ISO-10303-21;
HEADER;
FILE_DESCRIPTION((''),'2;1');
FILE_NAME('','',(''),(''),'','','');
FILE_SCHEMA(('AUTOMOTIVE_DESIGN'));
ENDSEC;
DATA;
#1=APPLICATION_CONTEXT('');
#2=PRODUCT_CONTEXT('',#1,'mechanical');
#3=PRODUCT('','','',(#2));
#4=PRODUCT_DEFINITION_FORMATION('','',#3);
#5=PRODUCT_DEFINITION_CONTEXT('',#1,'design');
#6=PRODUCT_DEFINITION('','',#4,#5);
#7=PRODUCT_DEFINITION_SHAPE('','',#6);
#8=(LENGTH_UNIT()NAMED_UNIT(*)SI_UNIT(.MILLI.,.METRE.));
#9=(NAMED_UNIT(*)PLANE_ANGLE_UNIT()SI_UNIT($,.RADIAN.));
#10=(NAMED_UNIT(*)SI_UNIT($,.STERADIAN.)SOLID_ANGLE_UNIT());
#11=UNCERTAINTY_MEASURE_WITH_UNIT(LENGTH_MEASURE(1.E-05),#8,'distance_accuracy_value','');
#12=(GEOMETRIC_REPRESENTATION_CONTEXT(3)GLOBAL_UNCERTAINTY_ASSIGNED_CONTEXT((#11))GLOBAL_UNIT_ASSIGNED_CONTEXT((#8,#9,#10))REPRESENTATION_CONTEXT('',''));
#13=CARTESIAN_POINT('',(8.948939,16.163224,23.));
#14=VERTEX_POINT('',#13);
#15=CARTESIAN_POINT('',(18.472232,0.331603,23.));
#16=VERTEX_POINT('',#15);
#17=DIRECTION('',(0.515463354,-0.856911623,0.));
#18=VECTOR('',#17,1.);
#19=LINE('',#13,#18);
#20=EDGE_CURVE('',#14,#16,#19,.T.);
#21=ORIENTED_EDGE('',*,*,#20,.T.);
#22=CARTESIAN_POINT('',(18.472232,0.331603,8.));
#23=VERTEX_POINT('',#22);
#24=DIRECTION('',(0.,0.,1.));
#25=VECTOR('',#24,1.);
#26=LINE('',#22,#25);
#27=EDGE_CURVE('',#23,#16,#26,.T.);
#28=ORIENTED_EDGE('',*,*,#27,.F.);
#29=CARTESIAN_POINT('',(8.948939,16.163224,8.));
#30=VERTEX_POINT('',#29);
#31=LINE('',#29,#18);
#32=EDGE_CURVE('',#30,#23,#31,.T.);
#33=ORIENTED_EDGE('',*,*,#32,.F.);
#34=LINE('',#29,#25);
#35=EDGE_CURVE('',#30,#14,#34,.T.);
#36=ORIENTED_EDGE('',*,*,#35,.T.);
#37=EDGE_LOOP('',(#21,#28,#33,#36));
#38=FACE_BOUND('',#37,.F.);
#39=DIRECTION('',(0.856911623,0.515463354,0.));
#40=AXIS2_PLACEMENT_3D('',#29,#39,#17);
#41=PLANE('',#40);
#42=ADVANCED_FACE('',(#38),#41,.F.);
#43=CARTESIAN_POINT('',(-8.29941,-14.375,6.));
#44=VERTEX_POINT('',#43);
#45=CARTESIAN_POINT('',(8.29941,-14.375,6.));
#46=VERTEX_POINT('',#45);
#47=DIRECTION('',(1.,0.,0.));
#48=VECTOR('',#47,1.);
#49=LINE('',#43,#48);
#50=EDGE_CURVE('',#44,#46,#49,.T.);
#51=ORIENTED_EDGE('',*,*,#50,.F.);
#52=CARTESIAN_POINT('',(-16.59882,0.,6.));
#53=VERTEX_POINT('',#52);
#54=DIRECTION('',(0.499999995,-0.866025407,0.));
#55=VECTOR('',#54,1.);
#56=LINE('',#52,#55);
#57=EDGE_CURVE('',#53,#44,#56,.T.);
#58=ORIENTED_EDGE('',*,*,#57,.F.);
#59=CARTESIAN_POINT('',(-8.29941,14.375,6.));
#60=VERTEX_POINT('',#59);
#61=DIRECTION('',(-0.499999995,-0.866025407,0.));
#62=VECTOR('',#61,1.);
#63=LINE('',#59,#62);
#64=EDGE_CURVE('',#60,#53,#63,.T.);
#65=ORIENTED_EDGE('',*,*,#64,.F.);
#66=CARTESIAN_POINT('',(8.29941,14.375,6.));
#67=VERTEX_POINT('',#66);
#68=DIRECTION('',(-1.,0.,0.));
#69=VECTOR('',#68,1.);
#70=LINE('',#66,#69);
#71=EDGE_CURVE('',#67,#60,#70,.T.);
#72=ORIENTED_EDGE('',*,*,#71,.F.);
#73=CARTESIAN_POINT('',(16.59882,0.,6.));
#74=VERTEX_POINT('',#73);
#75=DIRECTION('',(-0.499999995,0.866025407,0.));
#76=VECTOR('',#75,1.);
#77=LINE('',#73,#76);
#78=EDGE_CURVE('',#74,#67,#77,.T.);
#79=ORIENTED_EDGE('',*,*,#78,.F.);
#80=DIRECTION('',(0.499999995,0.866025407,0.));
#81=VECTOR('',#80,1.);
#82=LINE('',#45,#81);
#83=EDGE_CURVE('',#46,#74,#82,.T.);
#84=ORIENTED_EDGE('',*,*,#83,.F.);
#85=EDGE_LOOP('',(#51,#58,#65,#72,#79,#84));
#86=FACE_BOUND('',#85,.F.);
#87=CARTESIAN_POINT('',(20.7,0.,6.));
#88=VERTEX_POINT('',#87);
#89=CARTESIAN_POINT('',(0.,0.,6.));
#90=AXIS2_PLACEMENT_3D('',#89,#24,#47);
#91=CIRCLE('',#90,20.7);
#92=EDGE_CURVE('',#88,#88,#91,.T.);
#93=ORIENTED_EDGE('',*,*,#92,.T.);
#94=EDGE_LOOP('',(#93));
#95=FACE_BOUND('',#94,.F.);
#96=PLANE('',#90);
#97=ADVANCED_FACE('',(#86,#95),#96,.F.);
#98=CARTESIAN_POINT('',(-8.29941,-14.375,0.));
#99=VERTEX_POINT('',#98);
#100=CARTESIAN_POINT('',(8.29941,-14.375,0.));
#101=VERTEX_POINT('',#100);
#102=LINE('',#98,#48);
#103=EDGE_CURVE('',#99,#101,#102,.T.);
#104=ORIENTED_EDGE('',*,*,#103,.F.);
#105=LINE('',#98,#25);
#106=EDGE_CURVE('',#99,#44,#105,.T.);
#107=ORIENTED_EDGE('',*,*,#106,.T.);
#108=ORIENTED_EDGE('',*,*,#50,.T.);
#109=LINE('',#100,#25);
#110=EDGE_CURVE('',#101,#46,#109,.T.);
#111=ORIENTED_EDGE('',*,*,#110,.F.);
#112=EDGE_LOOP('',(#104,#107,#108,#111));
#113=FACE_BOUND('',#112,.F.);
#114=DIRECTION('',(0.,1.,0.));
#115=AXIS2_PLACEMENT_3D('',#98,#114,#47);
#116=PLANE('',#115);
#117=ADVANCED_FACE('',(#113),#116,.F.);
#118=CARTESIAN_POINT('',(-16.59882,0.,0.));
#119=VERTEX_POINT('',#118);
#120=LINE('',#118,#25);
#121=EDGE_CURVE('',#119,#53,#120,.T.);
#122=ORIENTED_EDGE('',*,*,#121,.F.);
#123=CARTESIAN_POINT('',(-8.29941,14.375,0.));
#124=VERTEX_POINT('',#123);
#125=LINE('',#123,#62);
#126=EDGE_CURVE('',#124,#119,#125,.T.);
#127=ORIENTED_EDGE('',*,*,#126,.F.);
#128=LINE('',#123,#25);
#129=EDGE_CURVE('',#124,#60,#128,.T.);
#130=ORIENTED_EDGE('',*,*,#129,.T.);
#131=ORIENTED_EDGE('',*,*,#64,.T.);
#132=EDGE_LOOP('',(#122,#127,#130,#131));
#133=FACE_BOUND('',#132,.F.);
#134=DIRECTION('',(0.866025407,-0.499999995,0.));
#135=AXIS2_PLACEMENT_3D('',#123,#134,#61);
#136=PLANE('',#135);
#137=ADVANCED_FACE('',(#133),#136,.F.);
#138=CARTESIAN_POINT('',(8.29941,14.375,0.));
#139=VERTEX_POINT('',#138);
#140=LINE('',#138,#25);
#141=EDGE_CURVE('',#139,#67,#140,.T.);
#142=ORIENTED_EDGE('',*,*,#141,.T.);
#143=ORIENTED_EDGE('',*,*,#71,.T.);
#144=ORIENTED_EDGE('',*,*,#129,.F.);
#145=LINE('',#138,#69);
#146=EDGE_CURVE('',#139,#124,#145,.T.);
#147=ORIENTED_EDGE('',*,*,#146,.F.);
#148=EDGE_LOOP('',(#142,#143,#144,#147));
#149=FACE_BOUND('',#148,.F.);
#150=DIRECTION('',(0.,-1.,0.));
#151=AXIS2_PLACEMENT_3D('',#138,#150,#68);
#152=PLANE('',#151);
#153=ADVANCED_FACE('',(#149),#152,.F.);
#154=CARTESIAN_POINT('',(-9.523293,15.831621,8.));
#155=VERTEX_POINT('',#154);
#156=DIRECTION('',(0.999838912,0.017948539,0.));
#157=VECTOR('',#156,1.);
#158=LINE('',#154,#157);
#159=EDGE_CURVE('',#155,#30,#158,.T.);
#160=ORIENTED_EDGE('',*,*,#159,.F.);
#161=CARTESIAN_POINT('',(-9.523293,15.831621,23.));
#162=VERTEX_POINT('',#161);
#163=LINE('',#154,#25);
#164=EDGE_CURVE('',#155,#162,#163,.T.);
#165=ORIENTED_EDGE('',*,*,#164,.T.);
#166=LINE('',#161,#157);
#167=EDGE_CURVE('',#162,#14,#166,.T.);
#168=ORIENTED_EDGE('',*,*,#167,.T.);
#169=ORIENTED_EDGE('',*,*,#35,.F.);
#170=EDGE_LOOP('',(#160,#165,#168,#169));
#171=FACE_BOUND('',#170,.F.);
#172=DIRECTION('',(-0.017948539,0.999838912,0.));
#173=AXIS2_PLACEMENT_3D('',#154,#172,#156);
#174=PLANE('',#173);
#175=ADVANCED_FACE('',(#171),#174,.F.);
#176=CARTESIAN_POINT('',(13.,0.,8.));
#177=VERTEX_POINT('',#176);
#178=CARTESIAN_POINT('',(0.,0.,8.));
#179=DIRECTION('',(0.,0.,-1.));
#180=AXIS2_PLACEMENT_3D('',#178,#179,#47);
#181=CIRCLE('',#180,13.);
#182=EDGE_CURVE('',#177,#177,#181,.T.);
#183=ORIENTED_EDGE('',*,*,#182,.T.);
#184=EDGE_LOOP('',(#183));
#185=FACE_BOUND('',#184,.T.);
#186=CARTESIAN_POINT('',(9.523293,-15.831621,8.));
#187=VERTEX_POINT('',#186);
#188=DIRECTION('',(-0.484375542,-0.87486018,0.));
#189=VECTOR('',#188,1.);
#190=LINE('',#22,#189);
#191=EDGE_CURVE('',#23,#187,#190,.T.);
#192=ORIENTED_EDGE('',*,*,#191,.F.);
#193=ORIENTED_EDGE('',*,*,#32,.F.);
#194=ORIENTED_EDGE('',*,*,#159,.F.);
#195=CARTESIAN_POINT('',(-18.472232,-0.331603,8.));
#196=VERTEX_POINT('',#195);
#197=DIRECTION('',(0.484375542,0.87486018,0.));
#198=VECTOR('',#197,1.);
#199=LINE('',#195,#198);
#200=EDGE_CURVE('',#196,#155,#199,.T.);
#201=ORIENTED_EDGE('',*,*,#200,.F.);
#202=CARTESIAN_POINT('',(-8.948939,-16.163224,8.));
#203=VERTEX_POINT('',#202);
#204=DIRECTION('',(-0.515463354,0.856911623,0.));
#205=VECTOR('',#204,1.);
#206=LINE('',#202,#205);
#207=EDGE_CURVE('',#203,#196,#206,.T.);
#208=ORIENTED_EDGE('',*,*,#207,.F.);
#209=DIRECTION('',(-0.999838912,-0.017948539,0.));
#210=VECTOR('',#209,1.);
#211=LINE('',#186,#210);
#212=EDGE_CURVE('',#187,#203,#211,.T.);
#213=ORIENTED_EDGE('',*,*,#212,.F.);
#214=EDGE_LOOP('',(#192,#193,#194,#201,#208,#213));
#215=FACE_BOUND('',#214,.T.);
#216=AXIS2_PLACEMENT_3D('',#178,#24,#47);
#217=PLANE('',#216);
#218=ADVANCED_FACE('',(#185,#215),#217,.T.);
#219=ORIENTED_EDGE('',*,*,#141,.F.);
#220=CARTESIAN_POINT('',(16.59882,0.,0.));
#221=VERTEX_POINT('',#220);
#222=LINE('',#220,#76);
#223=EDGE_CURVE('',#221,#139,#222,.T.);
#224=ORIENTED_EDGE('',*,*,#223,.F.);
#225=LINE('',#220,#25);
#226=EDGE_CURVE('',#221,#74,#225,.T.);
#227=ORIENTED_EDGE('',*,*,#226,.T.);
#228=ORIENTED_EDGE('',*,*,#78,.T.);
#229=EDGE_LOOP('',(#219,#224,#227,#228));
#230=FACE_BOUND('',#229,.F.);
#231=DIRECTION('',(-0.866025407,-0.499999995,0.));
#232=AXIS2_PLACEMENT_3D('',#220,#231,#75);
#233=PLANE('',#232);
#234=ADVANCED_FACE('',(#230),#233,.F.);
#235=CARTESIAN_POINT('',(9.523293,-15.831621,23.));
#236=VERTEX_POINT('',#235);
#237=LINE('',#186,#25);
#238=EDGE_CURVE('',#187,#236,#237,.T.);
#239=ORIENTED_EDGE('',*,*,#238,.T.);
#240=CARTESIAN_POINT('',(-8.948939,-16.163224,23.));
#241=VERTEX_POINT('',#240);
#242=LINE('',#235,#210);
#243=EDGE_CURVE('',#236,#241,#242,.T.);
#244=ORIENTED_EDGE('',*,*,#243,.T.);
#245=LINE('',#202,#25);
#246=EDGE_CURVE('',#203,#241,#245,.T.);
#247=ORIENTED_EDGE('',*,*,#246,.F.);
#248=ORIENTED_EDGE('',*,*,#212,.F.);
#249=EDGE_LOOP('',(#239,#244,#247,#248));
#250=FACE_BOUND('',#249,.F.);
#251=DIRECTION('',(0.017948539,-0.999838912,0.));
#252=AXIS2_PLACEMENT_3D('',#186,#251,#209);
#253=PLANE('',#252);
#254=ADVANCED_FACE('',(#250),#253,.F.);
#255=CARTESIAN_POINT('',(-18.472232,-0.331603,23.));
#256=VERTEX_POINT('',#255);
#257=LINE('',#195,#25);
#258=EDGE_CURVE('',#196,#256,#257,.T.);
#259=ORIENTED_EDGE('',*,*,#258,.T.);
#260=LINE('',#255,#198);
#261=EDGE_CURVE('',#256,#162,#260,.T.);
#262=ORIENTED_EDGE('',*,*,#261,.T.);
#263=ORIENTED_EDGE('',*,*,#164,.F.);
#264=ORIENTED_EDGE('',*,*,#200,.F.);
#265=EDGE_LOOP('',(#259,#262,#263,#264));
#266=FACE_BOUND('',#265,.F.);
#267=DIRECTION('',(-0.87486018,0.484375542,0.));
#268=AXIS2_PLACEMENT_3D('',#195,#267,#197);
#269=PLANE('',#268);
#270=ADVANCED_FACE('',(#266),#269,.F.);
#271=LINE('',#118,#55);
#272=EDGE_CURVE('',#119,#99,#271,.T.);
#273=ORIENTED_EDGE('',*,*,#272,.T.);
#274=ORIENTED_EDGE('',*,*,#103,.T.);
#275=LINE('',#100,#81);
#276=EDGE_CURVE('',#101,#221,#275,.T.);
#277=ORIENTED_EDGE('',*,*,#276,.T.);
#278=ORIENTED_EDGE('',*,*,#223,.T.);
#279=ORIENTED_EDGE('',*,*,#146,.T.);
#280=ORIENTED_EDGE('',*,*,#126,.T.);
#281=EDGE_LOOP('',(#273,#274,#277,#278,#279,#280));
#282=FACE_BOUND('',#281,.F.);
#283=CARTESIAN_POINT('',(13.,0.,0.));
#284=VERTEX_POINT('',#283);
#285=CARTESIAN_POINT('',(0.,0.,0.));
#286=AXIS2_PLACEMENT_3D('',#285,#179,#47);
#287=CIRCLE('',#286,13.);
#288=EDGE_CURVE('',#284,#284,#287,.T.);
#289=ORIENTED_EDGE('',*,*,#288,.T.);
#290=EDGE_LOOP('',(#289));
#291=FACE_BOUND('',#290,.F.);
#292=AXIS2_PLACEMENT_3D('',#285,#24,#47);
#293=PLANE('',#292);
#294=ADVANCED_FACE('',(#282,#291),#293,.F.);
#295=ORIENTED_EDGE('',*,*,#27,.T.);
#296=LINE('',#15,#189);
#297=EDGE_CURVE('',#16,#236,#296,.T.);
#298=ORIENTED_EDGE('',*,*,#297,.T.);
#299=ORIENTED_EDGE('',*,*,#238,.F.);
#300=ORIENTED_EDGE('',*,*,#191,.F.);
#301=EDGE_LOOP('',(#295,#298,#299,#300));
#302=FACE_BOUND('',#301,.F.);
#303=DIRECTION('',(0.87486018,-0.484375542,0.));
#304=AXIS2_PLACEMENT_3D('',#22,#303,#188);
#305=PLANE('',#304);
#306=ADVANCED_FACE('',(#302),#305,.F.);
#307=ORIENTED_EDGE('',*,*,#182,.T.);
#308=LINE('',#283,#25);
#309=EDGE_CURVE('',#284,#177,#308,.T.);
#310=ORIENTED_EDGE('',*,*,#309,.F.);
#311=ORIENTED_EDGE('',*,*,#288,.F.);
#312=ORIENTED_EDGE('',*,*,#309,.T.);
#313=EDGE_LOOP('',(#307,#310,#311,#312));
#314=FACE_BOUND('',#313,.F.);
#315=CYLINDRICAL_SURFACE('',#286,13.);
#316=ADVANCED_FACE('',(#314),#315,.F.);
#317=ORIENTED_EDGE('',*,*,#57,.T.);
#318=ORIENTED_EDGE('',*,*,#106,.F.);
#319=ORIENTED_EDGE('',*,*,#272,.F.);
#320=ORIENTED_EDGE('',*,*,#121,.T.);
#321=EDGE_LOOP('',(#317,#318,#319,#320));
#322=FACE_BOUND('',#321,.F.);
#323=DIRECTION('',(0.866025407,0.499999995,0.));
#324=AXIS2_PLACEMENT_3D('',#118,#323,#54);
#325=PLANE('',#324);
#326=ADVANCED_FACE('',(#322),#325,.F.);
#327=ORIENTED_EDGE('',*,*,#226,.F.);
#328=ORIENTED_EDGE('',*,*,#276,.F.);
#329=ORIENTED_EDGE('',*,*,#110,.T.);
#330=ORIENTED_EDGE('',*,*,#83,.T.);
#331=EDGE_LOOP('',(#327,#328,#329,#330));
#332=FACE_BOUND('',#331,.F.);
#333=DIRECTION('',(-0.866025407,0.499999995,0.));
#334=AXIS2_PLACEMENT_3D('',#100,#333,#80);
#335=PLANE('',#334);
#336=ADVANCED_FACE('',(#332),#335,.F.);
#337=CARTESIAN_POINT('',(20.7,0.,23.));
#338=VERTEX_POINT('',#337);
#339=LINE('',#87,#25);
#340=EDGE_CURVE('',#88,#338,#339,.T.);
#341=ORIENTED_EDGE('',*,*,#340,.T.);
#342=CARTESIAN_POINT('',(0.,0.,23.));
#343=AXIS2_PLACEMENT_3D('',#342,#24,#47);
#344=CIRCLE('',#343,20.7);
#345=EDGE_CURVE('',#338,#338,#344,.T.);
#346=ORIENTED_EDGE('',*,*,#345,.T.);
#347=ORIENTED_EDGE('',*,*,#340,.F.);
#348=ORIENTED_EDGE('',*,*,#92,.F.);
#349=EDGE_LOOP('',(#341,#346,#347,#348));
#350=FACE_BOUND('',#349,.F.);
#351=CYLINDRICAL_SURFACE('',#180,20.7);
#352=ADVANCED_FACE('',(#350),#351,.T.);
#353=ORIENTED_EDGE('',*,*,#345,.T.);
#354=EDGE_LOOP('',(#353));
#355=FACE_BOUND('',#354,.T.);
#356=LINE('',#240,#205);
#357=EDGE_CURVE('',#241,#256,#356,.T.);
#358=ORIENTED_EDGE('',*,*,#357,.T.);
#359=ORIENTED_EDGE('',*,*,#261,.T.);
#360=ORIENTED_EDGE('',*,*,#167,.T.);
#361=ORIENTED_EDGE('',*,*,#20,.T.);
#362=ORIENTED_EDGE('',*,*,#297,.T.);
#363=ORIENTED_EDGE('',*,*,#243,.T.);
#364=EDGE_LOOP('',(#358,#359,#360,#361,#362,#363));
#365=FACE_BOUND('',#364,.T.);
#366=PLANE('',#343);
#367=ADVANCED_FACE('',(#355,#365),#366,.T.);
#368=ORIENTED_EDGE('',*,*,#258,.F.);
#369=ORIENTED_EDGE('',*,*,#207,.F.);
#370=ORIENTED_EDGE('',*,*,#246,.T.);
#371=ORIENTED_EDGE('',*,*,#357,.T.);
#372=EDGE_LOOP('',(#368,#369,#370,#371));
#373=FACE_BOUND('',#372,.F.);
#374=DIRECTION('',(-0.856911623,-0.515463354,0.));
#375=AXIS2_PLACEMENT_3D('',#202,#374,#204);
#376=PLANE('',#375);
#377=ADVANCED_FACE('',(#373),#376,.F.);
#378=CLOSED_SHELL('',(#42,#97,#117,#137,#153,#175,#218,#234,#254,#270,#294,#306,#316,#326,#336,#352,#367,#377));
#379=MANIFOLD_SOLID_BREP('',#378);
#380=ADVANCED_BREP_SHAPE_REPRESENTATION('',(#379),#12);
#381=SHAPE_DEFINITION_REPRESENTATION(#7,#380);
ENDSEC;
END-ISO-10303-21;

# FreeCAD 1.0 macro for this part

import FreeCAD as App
import Part
import Sketcher

V = App.Vector
Q = App.Units.Quantity

doc = App.newDocument("Part")
body = doc.addObject("PartDesign::Body", "Body")

sketch1 = body.newObject("Sketcher::SketchObject", "Sketch")
sketch1.AttachmentSupport = (doc.getObject("XY_Plane"), [""])
sketch1.MapMode = "FlatFace"
sketch1.addGeometry(Part.LineSegment(V(8, 14, 0), V(-8, 14, 0)), False)
sketch1.addGeometry(Part.LineSegment(V(-8, 14, 0), V(-17, 0, 0)), False)
sketch1.addGeometry(Part.LineSegment(V(-17, 0, 0), V(-8, -14, 0)), False)
sketch1.addGeometry(Part.LineSegment(V(-8, -14, 0), V(8, -14, 0)), False)
sketch1.addGeometry(Part.LineSegment(V(8, -14, 0), V(17, 0, 0)), False)
sketch1.addGeometry(Part.LineSegment(V(17, 0, 0), V(8, 14, 0)), False)
sketch1.addConstraint(Sketcher.Constraint("Coincident", 0, 2, 1, 1))
sketch1.addConstraint(Sketcher.Constraint("Coincident", 1, 2, 2, 1))
sketch1.addConstraint(Sketcher.Constraint("Coincident", 2, 2, 3, 1))
sketch1.addConstraint(Sketcher.Constraint("Coincident", 3, 2, 4, 1))
sketch1.addConstraint(Sketcher.Constraint("Coincident", 4, 2, 5, 1))
sketch1.addConstraint(Sketcher.Constraint("Coincident", 5, 2, 0, 1))
sketch1.addConstraint(Sketcher.Constraint("Horizontal", 0))
sketch1.addConstraint(Sketcher.Constraint("Horizontal", 3))
sketch1.addConstraint(Sketcher.Constraint("Symmetric", 0, 2, 3, 2, -1, 1))
sketch1.addConstraint(Sketcher.Constraint("Symmetric", 1, 2, 4, 2, -1, 1))
sketch1.addConstraint(Sketcher.Constraint("PointOnObject", 1, 2, -1))
sketch1.addConstraint(Sketcher.Constraint("Parallel", 2, 5))
sketch1.addConstraint(Sketcher.Constraint("Vertical", 0, 2, 2, 2))
sketch1.addConstraint(Sketcher.Constraint("Angle", 1, Q("-120 deg")))
sketch1.addConstraint(Sketcher.Constraint("DistanceY", 2, 2, 0, 2, 28.75))
sketch1.addConstraint(Sketcher.Constraint("DistanceX", 0, 2, 0, 1, 16.59882))
pad1 = body.newObject("PartDesign::Pad", "Pad")
pad1.Profile = sketch1
pad1.Length = 6

sketch2 = body.newObject("Sketcher::SketchObject", "Sketch001")
sketch2.AttachmentSupport = (doc.getObject("XY_Plane"), [""])
sketch2.MapMode = "FlatFace"
sketch2.AttachmentOffset = App.Placement(V(0, 0, 6), App.Rotation())
sketch2.addGeometry(Part.Circle(V(0, 0, 0), V(0, 0, 1), 21), False)
sketch2.addConstraint(Sketcher.Constraint("Coincident", 0, 3, -1, 1))
sketch2.addConstraint(Sketcher.Constraint("Diameter", 0, 41.4))
pad2 = body.newObject("PartDesign::Pad", "Pad001")
pad2.Profile = sketch2
pad2.Length = 2

sketch3 = body.newObject("Sketcher::SketchObject", "Sketch002")
sketch3.AttachmentSupport = (doc.getObject("XY_Plane"), [""])
sketch3.MapMode = "FlatFace"
sketch3.AttachmentOffset = App.Placement(V(0, 0, 8), App.Rotation())
sketch3.addGeometry(Part.Circle(V(0, 0, 0), V(0, 0, 1), 21), False)
sketch3.addGeometry(Part.LineSegment(V(-18, 0, 0), V(-10, 16, 0)), False)
sketch3.addGeometry(Part.LineSegment(V(-10, 16, 0), V(9, 16, 0)), False)
sketch3.addGeometry(Part.LineSegment(V(9, 16, 0), V(18, 0, 0)), False)
sketch3.addGeometry(Part.LineSegment(V(18, 0, 0), V(10, -16, 0)), False)
sketch3.addGeometry(Part.LineSegment(V(10, -16, 0), V(-9, -16, 0)), False)
sketch3.addGeometry(Part.LineSegment(V(-9, -16, 0), V(-18, 0, 0)), False)
sketch3.addConstraint(Sketcher.Constraint("Coincident", 1, 2, 2, 1))
sketch3.addConstraint(Sketcher.Constraint("Coincident", 2, 2, 3, 1))
sketch3.addConstraint(Sketcher.Constraint("Coincident", 3, 2, 4, 1))
sketch3.addConstraint(Sketcher.Constraint("Coincident", 4, 2, 5, 1))
sketch3.addConstraint(Sketcher.Constraint("Coincident", 5, 2, 6, 1))
sketch3.addConstraint(Sketcher.Constraint("Coincident", 6, 2, 1, 1))
sketch3.addConstraint(Sketcher.Constraint("Coincident", 0, 3, -1, 1))
sketch3.addConstraint(Sketcher.Constraint("Symmetric", 1, 2, 4, 2, -1, 1))
sketch3.addConstraint(Sketcher.Constraint("Symmetric", 2, 2, 5, 2, -1, 1))
sketch3.addConstraint(Sketcher.Constraint("Symmetric", 3, 2, 6, 2, -1, 1))
sketch3.addConstraint(Sketcher.Constraint("Equal", 1, 2))
sketch3.addConstraint(Sketcher.Constraint("Equal", 2, 3))
sketch3.addConstraint(Sketcher.Constraint("Diameter", 0, 41.4))
sketch3.addConstraint(Sketcher.Constraint("Distance", 1, 18.475208))
sketch3.addConstraint(Sketcher.Constraint("DistanceY", -1, 1, 1, 2, 15.831621))
sketch3.addConstraint(Sketcher.Constraint("DistanceX", -1, 1, 2, 2, 8.948939))
sketch3.addConstraint(Sketcher.Constraint("DistanceX", 1, 2, 2, 2, 18.472232))
pad3 = body.newObject("PartDesign::Pad", "Pad002")
pad3.Profile = sketch3
pad3.Length = 15

sketch4 = body.newObject("Sketcher::SketchObject", "Sketch003")
sketch4.AttachmentSupport = (doc.getObject("XY_Plane"), [""])
sketch4.MapMode = "FlatFace"
sketch4.addGeometry(Part.Circle(V(0, 0, 0), V(0, 0, 1), 13), False)
sketch4.addConstraint(Sketcher.Constraint("Coincident", 0, 3, -1, 1))
sketch4.addConstraint(Sketcher.Constraint("Diameter", 0, 26.0))
pocket1 = body.newObject("PartDesign::Pocket", "Pocket")
pocket1.Profile = sketch4
pocket1.Length = 25
pocket1.Reversed = True

doc.recompute()
